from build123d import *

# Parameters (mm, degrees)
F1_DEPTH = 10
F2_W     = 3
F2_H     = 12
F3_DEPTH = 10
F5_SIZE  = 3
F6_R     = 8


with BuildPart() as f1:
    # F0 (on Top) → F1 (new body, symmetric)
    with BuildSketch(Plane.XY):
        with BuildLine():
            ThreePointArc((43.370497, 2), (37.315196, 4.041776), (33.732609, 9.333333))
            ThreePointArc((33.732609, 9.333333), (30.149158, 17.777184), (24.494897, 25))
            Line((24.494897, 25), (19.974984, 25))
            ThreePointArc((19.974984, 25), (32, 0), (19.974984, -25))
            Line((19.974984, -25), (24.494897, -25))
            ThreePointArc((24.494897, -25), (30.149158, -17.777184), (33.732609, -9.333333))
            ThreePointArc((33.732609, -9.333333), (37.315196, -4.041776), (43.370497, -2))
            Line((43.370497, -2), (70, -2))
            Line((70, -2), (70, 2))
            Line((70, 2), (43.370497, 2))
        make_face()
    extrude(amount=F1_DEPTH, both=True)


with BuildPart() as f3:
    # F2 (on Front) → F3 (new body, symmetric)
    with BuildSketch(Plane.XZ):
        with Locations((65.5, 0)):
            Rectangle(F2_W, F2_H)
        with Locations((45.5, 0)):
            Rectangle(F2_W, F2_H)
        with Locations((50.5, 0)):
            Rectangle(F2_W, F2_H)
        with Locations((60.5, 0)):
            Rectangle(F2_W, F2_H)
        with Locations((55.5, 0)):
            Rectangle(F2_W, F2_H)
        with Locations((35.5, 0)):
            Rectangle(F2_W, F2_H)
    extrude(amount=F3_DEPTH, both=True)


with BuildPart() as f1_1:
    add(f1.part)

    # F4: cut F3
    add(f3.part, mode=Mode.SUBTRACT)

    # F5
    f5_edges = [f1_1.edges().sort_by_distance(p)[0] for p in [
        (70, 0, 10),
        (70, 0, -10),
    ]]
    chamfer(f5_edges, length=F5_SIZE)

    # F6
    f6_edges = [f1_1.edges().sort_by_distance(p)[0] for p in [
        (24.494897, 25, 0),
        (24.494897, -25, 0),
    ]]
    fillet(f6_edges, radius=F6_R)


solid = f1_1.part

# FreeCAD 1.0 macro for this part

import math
import FreeCAD as App
import Part
import Sketcher
Q = App.Units.Quantity


def edges_at(feature, points):
    """Names of the edges that pass closest to the given points."""
    edges = feature.Shape.Edges
    near = lambda p: min(range(len(edges)), key=lambda i: edges[i].distToShape(Part.Vertex(*p))[0])
    return sorted({f"Edge{near(p) + 1}" for p in points})


def add_polygon(sketch, points):
    """Adds a closed chain of lines whose ends are joined by coincident constraints."""
    first, n = sketch.GeometryCount, len(points)
    for a, b in zip(points, points[1:] + points[:1]):
        sketch.addGeometry(Part.LineSegment(App.Vector(*a, 0), App.Vector(*b, 0)), False)
    for i in range(n):
        sketch.addConstraint(Sketcher.Constraint("Coincident", first + i, 2, first + (i + 1) % n, 1))

doc = App.newDocument("Part")
body = doc.addObject("PartDesign::Body", "Body")

sketch1 = body.newObject("Sketcher::SketchObject", "Sketch")
sketch1.AttachmentSupport = (doc.getObject("XY_Plane"), [""])
sketch1.MapMode = "FlatFace"
sketch1.addGeometry(Part.ArcOfCircle(Part.Circle(App.Vector(43.4, 12, 0), App.Vector(0, 0, 1), 10), math.radians(-165), math.radians(-90)), False)
sketch1.addGeometry(Part.ArcOfCircle(Part.Circle(App.Vector(0, 0, 0), App.Vector(0, 0, 1), 35), math.radians(15), math.radians(46)), False)
sketch1.addGeometry(Part.LineSegment(App.Vector(24.5, 25, 0), App.Vector(20, 25, 0)), False)
sketch1.addGeometry(Part.ArcOfCircle(Part.Circle(App.Vector(0, 0, 0), App.Vector(0, 0, 1), 32), math.radians(-51), math.radians(51)), False)
sketch1.addGeometry(Part.LineSegment(App.Vector(20, -25, 0), App.Vector(24.5, -25, 0)), False)
sketch1.addGeometry(Part.ArcOfCircle(Part.Circle(App.Vector(0, 0, 0), App.Vector(0, 0, 1), 35), math.radians(-46), math.radians(-15)), False)
sketch1.addGeometry(Part.ArcOfCircle(Part.Circle(App.Vector(43.4, -12, 0), App.Vector(0, 0, 1), 10), math.radians(90), math.radians(165)), False)
sketch1.addGeometry(Part.LineSegment(App.Vector(43.4, -2, 0), App.Vector(70, -2, 0)), False)
sketch1.addGeometry(Part.LineSegment(App.Vector(70, -2, 0), App.Vector(70, 2, 0)), False)
sketch1.addGeometry(Part.LineSegment(App.Vector(70, 2, 0), App.Vector(43.4, 2, 0)), False)
sketch1.addConstraint(Sketcher.Constraint("Tangent", 0, 1, 1, 1))
sketch1.addConstraint(Sketcher.Constraint("Coincident", 1, 2, 2, 1))
sketch1.addConstraint(Sketcher.Constraint("Coincident", 2, 2, 3, 2))
sketch1.addConstraint(Sketcher.Constraint("Coincident", 3, 1, 4, 1))
sketch1.addConstraint(Sketcher.Constraint("Coincident", 4, 2, 5, 1))
sketch1.addConstraint(Sketcher.Constraint("Tangent", 5, 2, 6, 2))
sketch1.addConstraint(Sketcher.Constraint("Tangent", 6, 1, 7, 1))
sketch1.addConstraint(Sketcher.Constraint("Coincident", 7, 2, 8, 1))
sketch1.addConstraint(Sketcher.Constraint("Coincident", 8, 2, 9, 1))
sketch1.addConstraint(Sketcher.Constraint("Tangent", 9, 2, 0, 2))
sketch1.addConstraint(Sketcher.Constraint("Horizontal", 2))
sketch1.addConstraint(Sketcher.Constraint("Horizontal", 4))
sketch1.addConstraint(Sketcher.Constraint("Horizontal", 7))
sketch1.addConstraint(Sketcher.Constraint("Vertical", 8))
sketch1.addConstraint(Sketcher.Constraint("Horizontal", 9))
sketch1.addConstraint(Sketcher.Constraint("Coincident", 1, 3, -1, 1))
sketch1.addConstraint(Sketcher.Constraint("Coincident", 3, 3, -1, 1))
sketch1.addConstraint(Sketcher.Constraint("Coincident", 5, 3, -1, 1))
sketch1.addConstraint(Sketcher.Constraint("Equal", 1, 5))
sketch1.addConstraint(Sketcher.Constraint("Equal", 0, 6))
sketch1.addConstraint(Sketcher.Constraint("Vertical", 0, 3, 6, 3))
sketch1.addConstraint(Sketcher.Constraint("Vertical", 2, 2, 3, 1))
sketch1.addConstraint(Sketcher.Constraint("Radius", 0, Q("10 mm")))
sketch1.addConstraint(Sketcher.Constraint("Radius", 1, Q("34.999999 mm")))
sketch1.addConstraint(Sketcher.Constraint("Radius", 3, Q("31.999999 mm")))
sketch1.addConstraint(Sketcher.Constraint("DistanceY", 8, 1, 8, 2, Q("4 mm")))
sketch1.addConstraint(Sketcher.Constraint("DistanceY", -1, 1, 1, 2, Q("25 mm")))
sketch1.addConstraint(Sketcher.Constraint("DistanceX", -1, 1, 7, 2, Q("70 mm")))
pad1 = body.newObject("PartDesign::Pad", "Pad")
pad1.Profile = sketch1
pad1.Length = 20
pad1.Midplane = True
body2 = doc.addObject("PartDesign::Body", "Body001")
body2.AllowCompound = True

sketch2 = body2.newObject("Sketcher::SketchObject", "Sketch001")
sketch2.AttachmentSupport = (doc.getObject("XZ_Plane001"), [""])
sketch2.MapMode = "FlatFace"
add_polygon(sketch2, [(64, 6), (64, -6), (67, -6), (67, 6)])
add_polygon(sketch2, [(44, 6), (44, -6), (47, -6), (47, 6)])
add_polygon(sketch2, [(49, 6), (49, -6), (52, -6), (52, 6)])
add_polygon(sketch2, [(59, 6), (59, -6), (62, -6), (62, 6)])
add_polygon(sketch2, [(54, 6), (54, -6), (57, -6), (57, 6)])
add_polygon(sketch2, [(34, 6), (34, -6), (37, -6), (37, 6)])
sketch2.addConstraint(Sketcher.Constraint("Vertical", 0))
sketch2.addConstraint(Sketcher.Constraint("Horizontal", 1))
sketch2.addConstraint(Sketcher.Constraint("Vertical", 2))
sketch2.addConstraint(Sketcher.Constraint("Horizontal", 3))
sketch2.addConstraint(Sketcher.Constraint("Vertical", 4))
sketch2.addConstraint(Sketcher.Constraint("Horizontal", 5))
sketch2.addConstraint(Sketcher.Constraint("Vertical", 6))
sketch2.addConstraint(Sketcher.Constraint("Horizontal", 7))
sketch2.addConstraint(Sketcher.Constraint("Vertical", 8))
sketch2.addConstraint(Sketcher.Constraint("Horizontal", 9))
sketch2.addConstraint(Sketcher.Constraint("Vertical", 10))
sketch2.addConstraint(Sketcher.Constraint("Horizontal", 11))
sketch2.addConstraint(Sketcher.Constraint("Vertical", 12))
sketch2.addConstraint(Sketcher.Constraint("Horizontal", 13))
sketch2.addConstraint(Sketcher.Constraint("Vertical", 14))
sketch2.addConstraint(Sketcher.Constraint("Horizontal", 15))
sketch2.addConstraint(Sketcher.Constraint("Vertical", 16))
sketch2.addConstraint(Sketcher.Constraint("Horizontal", 17))
sketch2.addConstraint(Sketcher.Constraint("Vertical", 18))
sketch2.addConstraint(Sketcher.Constraint("Horizontal", 19))
sketch2.addConstraint(Sketcher.Constraint("Vertical", 20))
sketch2.addConstraint(Sketcher.Constraint("Horizontal", 21))
sketch2.addConstraint(Sketcher.Constraint("Vertical", 22))
sketch2.addConstraint(Sketcher.Constraint("Horizontal", 23))
sketch2.addConstraint(Sketcher.Constraint("Horizontal", 1, 2, 4, 2))
sketch2.addConstraint(Sketcher.Constraint("Horizontal", 3, 2, 6, 2))
sketch2.addConstraint(Sketcher.Constraint("Horizontal", 5, 2, 8, 2))
sketch2.addConstraint(Sketcher.Constraint("Horizontal", 7, 2, 10, 2))
sketch2.addConstraint(Sketcher.Constraint("Horizontal", 9, 2, 12, 2))
sketch2.addConstraint(Sketcher.Constraint("Horizontal", 11, 2, 14, 2))
sketch2.addConstraint(Sketcher.Constraint("Horizontal", 13, 2, 16, 2))
sketch2.addConstraint(Sketcher.Constraint("Horizontal", 15, 2, 18, 2))
sketch2.addConstraint(Sketcher.Constraint("Horizontal", 17, 2, 20, 2))
sketch2.addConstraint(Sketcher.Constraint("Horizontal", 19, 2, 22, 2))
sketch2.addConstraint(Sketcher.Constraint("Equal", 3, 5))
sketch2.addConstraint(Sketcher.Constraint("Equal", 7, 9))
sketch2.addConstraint(Sketcher.Constraint("Equal", 11, 13))
sketch2.addConstraint(Sketcher.Constraint("Equal", 15, 17))
sketch2.addConstraint(Sketcher.Constraint("Equal", 19, 21))
sketch2.addConstraint(Sketcher.Constraint("DistanceX", 1, 1, 1, 2, Q("3 mm")))
sketch2.addConstraint(Sketcher.Constraint("DistanceY", 0, 2, 0, 1, Q("12 mm")))
sketch2.addConstraint(Sketcher.Constraint("DistanceX", -1, 1, 0, 2, Q("64 mm")))
sketch2.addConstraint(Sketcher.Constraint("DistanceY", 0, 2, -1, 1, Q("6 mm")))
sketch2.addConstraint(Sketcher.Constraint("DistanceX", -1, 1, 4, 2, Q("44 mm")))
sketch2.addConstraint(Sketcher.Constraint("DistanceX", -1, 1, 8, 2, Q("49 mm")))
sketch2.addConstraint(Sketcher.Constraint("DistanceX", -1, 1, 12, 2, Q("59 mm")))
sketch2.addConstraint(Sketcher.Constraint("DistanceX", -1, 1, 16, 2, Q("54 mm")))
sketch2.addConstraint(Sketcher.Constraint("DistanceX", -1, 1, 20, 2, Q("34 mm")))
pad2 = body2.newObject("PartDesign::Pad", "Pad001")
pad2.Profile = sketch2
pad2.Length = 20
pad2.Midplane = True
doc.recompute()

boolean = body.newObject("PartDesign::Boolean", "Boolean")
boolean.Type = "Cut"
boolean.addObjects([body2])
doc.recompute()

chamfer = body.newObject("PartDesign::Chamfer", "Chamfer")
chamfer.Base = (boolean, edges_at(boolean, [(70, 0, 10), (70, 0, -10)]))
chamfer.Size = 3
doc.recompute()

fillet = body.newObject("PartDesign::Fillet", "Fillet")
fillet.Base = (chamfer, edges_at(chamfer, [(24.495, 25, 0), (24.495, -25, 0)]))
fillet.Radius = 8

doc.recompute()
